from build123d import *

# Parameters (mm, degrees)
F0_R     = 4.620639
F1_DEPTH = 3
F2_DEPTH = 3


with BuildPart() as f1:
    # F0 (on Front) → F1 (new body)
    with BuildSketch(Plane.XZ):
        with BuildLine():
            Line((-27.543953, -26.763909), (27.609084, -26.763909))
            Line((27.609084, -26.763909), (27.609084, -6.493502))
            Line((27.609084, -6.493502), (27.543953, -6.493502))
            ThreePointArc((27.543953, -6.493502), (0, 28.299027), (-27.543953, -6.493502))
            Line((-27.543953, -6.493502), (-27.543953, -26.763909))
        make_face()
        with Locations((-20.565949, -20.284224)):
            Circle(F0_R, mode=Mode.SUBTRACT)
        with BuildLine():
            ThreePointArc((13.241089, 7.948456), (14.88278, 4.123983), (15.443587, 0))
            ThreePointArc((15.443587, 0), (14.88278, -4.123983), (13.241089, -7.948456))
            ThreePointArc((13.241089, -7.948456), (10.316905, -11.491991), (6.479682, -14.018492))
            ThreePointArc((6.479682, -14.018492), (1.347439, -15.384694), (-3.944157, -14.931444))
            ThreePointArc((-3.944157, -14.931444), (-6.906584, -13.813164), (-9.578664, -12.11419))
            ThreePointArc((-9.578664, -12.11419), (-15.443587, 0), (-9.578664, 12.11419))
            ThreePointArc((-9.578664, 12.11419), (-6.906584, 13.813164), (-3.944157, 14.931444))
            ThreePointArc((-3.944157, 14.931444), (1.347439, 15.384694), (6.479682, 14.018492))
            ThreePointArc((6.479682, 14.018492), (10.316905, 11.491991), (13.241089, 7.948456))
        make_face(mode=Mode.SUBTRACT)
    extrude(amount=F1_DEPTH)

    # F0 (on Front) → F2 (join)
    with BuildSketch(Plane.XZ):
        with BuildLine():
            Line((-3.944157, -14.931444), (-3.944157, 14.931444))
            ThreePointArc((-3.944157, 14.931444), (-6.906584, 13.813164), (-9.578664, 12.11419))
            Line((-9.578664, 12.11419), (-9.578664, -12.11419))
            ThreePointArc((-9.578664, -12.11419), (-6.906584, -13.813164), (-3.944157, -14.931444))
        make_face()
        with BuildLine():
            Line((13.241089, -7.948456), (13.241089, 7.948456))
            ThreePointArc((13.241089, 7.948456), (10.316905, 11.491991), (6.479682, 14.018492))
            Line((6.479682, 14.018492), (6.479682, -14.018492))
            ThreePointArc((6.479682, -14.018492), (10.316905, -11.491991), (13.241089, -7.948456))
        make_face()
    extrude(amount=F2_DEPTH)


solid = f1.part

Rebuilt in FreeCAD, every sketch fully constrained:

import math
import FreeCAD as App
import Part
import Sketcher
from FreeCAD import Vector

doc = App.newDocument("Part")
params = doc.addObject("Spreadsheet::Sheet", "Params")
for row, (alias, value) in enumerate([
    ("pad1_length", "3 mm"),
    ("pad2_length", "3 mm"),
], start=1):
    params.set(f"A{row}", alias)
    params.set(f"B{row}", "=" + value)
    params.setAlias(f"B{row}", alias)

body = doc.addObject("PartDesign::Body", "Body")

# Sketch on XZ plane
sketch1 = body.newObject("Sketcher::SketchObject", "Sketch")
sketch1.AttachmentSupport = (doc.getObject("XZ_Plane"), [""])
sketch1.MapMode = "FlatFace"
sketch1.addGeometry([
    Part.LineSegment(Vector(-27.543953, -26.763909, 0), Vector(27.609084, -26.763909, 0)),  # 0
    Part.LineSegment(Vector(27.609084, -26.763909, 0), Vector(27.609084, -6.493502, 0)),  # 1
    Part.LineSegment(Vector(27.609084, -6.493502, 0), Vector(27.543953, -6.493502, 0)),  # 2
    Part.ArcOfCircle(Part.Circle(Vector(0, 0, 0), Vector(0, 0, 1), 28.299027), math.radians(-13.265297), math.radians(193.265297)),  # 3
    Part.LineSegment(Vector(-27.543953, -6.493502, 0), Vector(-27.543953, -26.763909, 0)),  # 4
    Part.Circle(Vector(-20.565949, -20.284224, 0), Vector(0, 0, 1), 4.620639),  # 5
    Part.ArcOfCircle(Part.Circle(Vector(-0.000004, -0.000004, 0), Vector(0, 0, 1), 15.443593), math.radians(30.975859), math.radians(65.192485)),  # 6
    Part.ArcOfCircle(Part.Circle(Vector(-0.000008, -0.000001, 0), Vector(0, 0, 1), 15.443595), math.radians(0.000005), math.radians(30.975844)),  # 7
    Part.ArcOfCircle(Part.Circle(Vector(-0.000008, 0.000001, 0), Vector(0, 0, 1), 15.443595), math.radians(-30.975844), math.radians(-0.000005)),  # 8
    Part.ArcOfCircle(Part.Circle(Vector(-0.000004, 0.000004, 0), Vector(0, 0, 1), 15.443593), math.radians(-65.192485), math.radians(-30.975859)),  # 9
    Part.ArcOfCircle(Part.Circle(Vector(0, -0.000003, 0), Vector(0, 0, 1), 15.443585), math.radians(-104.796774), math.radians(-65.192488)),  # 10
    Part.ArcOfCircle(Part.Circle(Vector(-0.000003, -0.000004, 0), Vector(0, 0, 1), 15.443583), math.radians(-128.333348), math.radians(-104.796763)),  # 11
    Part.ArcOfCircle(Part.Circle(Vector(0.000002, 0, 0), Vector(0, 0, 1), 15.443589), math.radians(128.333352), math.radians(231.666648)),  # 12
    Part.ArcOfCircle(Part.Circle(Vector(-0.000003, 0.000004, 0), Vector(0, 0, 1), 15.443583), math.radians(104.796763), math.radians(128.333348)),  # 13
    Part.ArcOfCircle(Part.Circle(Vector(0, 0.000003, 0), Vector(0, 0, 1), 15.443585), math.radians(65.192488), math.radians(104.796774)),  # 14
], False)
sketch1.addConstraint([
    Sketcher.Constraint("Coincident", 0, 2, 1, 1),
    Sketcher.Constraint("Coincident", 1, 2, 2, 1),
    Sketcher.Constraint("Coincident", 2, 2, 3, 1),
    Sketcher.Constraint("Coincident", 3, 2, 4, 1),
    Sketcher.Constraint("Coincident", 4, 2, 0, 1),
    Sketcher.Constraint("Tangent", 6, 1, 7, 2),
    Sketcher.Constraint("Tangent", 7, 1, 8, 2),
    Sketcher.Constraint("Tangent", 8, 1, 9, 2),
    Sketcher.Constraint("Tangent", 9, 1, 10, 2),
    Sketcher.Constraint("Tangent", 10, 1, 11, 2),
    Sketcher.Constraint("Tangent", 11, 1, 12, 2),
    Sketcher.Constraint("Tangent", 12, 1, 13, 2),
    Sketcher.Constraint("Tangent", 13, 1, 14, 2),
    Sketcher.Constraint("Tangent", 14, 1, 6, 2),
    Sketcher.Constraint("Horizontal", 0),
    Sketcher.Constraint("Vertical", 1),
    Sketcher.Constraint("Horizontal", 2),
    Sketcher.Constraint("Vertical", 4),
    Sketcher.Constraint("Coincident", 3, 3, -1, 1),
    Sketcher.Constraint("Coincident", 6, 3, -1, 1),
    Sketcher.Constraint("Coincident", 8, 3, -1, 1),
    Sketcher.Constraint("Coincident", 10, 3, -1, 1),
    Sketcher.Constraint("Coincident", 12, 3, -1, 1),
    Sketcher.Constraint("PointOnObject", 7, 1, -1),
    Sketcher.Constraint("Horizontal", 2, 2, 3, 2),
    Sketcher.Constraint("Vertical", 6, 1, 8, 1),
    Sketcher.Constraint("Vertical", 11, 1, 12, 1),
    Sketcher.Constraint("Vertical", 10, 1, 13, 1),
    Sketcher.Constraint("Vertical", 9, 1, 14, 1),
    Sketcher.Constraint("Radius", 12, 15.443589),
    Sketcher.Constraint("Diameter", 5, 9.241278),
    Sketcher.Constraint("Radius", 3, 28.299027),
    Sketcher.Constraint("DistanceX", 2, 2, 2, 1, 0.065131),
    Sketcher.Constraint("DistanceY", 1, 2, 10, 3, 6.493499),
    Sketcher.Constraint("DistanceY", 1, 1, 1, 2, 20.270407),
    Sketcher.Constraint("DistanceX", 5, 3, -1, 1, 20.565949),
    Sketcher.Constraint("DistanceX", -1, 1, 6, 1, 13.241089),
    Sketcher.Constraint("DistanceY", 11, 1, -1, 1, 12.11419),
    Sketcher.Constraint("DistanceX", -1, 1, 14, 1, 6.479682),
    Sketcher.Constraint("DistanceY", 5, 3, 6, 3, 20.28422),
    Sketcher.Constraint("DistanceX", 10, 1, 9, 1, 10.423839),
])
pad1 = body.newObject("PartDesign::Pad", "Pad")
pad1.Profile = sketch1
pad1.setExpression("Length", "Params.pad1_length")

# Sketch on XZ plane
sketch2 = body.newObject("Sketcher::SketchObject", "Sketch001")
sketch2.AttachmentSupport = (doc.getObject("XZ_Plane"), [""])
sketch2.MapMode = "FlatFace"
sketch2.addGeometry([
    Part.LineSegment(Vector(-3.944157, -14.931444, 0), Vector(-3.944157, 14.931444, 0)),  # 0
    Part.ArcOfCircle(Part.Circle(Vector(-0.000003, 0.000004, 0), Vector(0, 0, 1), 15.443583), math.radians(104.796763), math.radians(128.333348)),  # 1
    Part.LineSegment(Vector(-9.578664, 12.11419, 0), Vector(-9.578664, -12.11419, 0)),  # 2
    Part.ArcOfCircle(Part.Circle(Vector(-0.000003, -0.000004, 0), Vector(0, 0, 1), 15.443583), math.radians(-128.333348), math.radians(-104.796763)),  # 3
    Part.LineSegment(Vector(13.241089, -7.948456, 0), Vector(13.241089, 7.948456, 0)),  # 4
    Part.ArcOfCircle(Part.Circle(Vector(-0.000004, -0.000004, 0), Vector(0, 0, 1), 15.443593), math.radians(30.975859), math.radians(65.192485)),  # 5
    Part.LineSegment(Vector(6.479682, 14.018492, 0), Vector(6.479682, -14.018492, 0)),  # 6
    Part.ArcOfCircle(Part.Circle(Vector(-0.000004, 0.000004, 0), Vector(0, 0, 1), 15.443593), math.radians(-65.192485), math.radians(-30.975859)),  # 7
], False)
sketch2.addConstraint([
    Sketcher.Constraint("Coincident", 0, 2, 1, 1),
    Sketcher.Constraint("Coincident", 1, 2, 2, 1),
    Sketcher.Constraint("Coincident", 2, 2, 3, 1),
    Sketcher.Constraint("Coincident", 3, 2, 0, 1),
    Sketcher.Constraint("Coincident", 4, 2, 5, 1),
    Sketcher.Constraint("Coincident", 5, 2, 6, 1),
    Sketcher.Constraint("Coincident", 6, 2, 7, 1),
    Sketcher.Constraint("Coincident", 7, 2, 4, 1),
    Sketcher.Constraint("Vertical", 0),
    Sketcher.Constraint("Vertical", 2),
    Sketcher.Constraint("Vertical", 4),
    Sketcher.Constraint("Vertical", 6),
    Sketcher.Constraint("Coincident", 1, 3, -1, 1),
    Sketcher.Constraint("Coincident", 3, 3, -1, 1),
    Sketcher.Constraint("Coincident", 5, 3, -1, 1),
    Sketcher.Constraint("Coincident", 7, 3, -1, 1),
    Sketcher.Constraint("Equal", 1, 3),
    Sketcher.Constraint("Equal", 5, 7),
    Sketcher.Constraint("Radius", 1, 15.443583),
    Sketcher.Constraint("Radius", 5, 15.443593),
    Sketcher.Constraint("DistanceY", 0, 1, 0, 2, 29.862888),
    Sketcher.Constraint("DistanceY", 2, 2, 2, 1, 24.22838),
    Sketcher.Constraint("DistanceY", 4, 1, 4, 2, 15.896912),
    Sketcher.Constraint("DistanceY", 6, 2, 6, 1, 28.036984),
])
pad2 = body.newObject("PartDesign::Pad", "Pad001")
pad2.Profile = sketch2
pad2.setExpression("Length", "Params.pad2_length")

doc.recompute()
